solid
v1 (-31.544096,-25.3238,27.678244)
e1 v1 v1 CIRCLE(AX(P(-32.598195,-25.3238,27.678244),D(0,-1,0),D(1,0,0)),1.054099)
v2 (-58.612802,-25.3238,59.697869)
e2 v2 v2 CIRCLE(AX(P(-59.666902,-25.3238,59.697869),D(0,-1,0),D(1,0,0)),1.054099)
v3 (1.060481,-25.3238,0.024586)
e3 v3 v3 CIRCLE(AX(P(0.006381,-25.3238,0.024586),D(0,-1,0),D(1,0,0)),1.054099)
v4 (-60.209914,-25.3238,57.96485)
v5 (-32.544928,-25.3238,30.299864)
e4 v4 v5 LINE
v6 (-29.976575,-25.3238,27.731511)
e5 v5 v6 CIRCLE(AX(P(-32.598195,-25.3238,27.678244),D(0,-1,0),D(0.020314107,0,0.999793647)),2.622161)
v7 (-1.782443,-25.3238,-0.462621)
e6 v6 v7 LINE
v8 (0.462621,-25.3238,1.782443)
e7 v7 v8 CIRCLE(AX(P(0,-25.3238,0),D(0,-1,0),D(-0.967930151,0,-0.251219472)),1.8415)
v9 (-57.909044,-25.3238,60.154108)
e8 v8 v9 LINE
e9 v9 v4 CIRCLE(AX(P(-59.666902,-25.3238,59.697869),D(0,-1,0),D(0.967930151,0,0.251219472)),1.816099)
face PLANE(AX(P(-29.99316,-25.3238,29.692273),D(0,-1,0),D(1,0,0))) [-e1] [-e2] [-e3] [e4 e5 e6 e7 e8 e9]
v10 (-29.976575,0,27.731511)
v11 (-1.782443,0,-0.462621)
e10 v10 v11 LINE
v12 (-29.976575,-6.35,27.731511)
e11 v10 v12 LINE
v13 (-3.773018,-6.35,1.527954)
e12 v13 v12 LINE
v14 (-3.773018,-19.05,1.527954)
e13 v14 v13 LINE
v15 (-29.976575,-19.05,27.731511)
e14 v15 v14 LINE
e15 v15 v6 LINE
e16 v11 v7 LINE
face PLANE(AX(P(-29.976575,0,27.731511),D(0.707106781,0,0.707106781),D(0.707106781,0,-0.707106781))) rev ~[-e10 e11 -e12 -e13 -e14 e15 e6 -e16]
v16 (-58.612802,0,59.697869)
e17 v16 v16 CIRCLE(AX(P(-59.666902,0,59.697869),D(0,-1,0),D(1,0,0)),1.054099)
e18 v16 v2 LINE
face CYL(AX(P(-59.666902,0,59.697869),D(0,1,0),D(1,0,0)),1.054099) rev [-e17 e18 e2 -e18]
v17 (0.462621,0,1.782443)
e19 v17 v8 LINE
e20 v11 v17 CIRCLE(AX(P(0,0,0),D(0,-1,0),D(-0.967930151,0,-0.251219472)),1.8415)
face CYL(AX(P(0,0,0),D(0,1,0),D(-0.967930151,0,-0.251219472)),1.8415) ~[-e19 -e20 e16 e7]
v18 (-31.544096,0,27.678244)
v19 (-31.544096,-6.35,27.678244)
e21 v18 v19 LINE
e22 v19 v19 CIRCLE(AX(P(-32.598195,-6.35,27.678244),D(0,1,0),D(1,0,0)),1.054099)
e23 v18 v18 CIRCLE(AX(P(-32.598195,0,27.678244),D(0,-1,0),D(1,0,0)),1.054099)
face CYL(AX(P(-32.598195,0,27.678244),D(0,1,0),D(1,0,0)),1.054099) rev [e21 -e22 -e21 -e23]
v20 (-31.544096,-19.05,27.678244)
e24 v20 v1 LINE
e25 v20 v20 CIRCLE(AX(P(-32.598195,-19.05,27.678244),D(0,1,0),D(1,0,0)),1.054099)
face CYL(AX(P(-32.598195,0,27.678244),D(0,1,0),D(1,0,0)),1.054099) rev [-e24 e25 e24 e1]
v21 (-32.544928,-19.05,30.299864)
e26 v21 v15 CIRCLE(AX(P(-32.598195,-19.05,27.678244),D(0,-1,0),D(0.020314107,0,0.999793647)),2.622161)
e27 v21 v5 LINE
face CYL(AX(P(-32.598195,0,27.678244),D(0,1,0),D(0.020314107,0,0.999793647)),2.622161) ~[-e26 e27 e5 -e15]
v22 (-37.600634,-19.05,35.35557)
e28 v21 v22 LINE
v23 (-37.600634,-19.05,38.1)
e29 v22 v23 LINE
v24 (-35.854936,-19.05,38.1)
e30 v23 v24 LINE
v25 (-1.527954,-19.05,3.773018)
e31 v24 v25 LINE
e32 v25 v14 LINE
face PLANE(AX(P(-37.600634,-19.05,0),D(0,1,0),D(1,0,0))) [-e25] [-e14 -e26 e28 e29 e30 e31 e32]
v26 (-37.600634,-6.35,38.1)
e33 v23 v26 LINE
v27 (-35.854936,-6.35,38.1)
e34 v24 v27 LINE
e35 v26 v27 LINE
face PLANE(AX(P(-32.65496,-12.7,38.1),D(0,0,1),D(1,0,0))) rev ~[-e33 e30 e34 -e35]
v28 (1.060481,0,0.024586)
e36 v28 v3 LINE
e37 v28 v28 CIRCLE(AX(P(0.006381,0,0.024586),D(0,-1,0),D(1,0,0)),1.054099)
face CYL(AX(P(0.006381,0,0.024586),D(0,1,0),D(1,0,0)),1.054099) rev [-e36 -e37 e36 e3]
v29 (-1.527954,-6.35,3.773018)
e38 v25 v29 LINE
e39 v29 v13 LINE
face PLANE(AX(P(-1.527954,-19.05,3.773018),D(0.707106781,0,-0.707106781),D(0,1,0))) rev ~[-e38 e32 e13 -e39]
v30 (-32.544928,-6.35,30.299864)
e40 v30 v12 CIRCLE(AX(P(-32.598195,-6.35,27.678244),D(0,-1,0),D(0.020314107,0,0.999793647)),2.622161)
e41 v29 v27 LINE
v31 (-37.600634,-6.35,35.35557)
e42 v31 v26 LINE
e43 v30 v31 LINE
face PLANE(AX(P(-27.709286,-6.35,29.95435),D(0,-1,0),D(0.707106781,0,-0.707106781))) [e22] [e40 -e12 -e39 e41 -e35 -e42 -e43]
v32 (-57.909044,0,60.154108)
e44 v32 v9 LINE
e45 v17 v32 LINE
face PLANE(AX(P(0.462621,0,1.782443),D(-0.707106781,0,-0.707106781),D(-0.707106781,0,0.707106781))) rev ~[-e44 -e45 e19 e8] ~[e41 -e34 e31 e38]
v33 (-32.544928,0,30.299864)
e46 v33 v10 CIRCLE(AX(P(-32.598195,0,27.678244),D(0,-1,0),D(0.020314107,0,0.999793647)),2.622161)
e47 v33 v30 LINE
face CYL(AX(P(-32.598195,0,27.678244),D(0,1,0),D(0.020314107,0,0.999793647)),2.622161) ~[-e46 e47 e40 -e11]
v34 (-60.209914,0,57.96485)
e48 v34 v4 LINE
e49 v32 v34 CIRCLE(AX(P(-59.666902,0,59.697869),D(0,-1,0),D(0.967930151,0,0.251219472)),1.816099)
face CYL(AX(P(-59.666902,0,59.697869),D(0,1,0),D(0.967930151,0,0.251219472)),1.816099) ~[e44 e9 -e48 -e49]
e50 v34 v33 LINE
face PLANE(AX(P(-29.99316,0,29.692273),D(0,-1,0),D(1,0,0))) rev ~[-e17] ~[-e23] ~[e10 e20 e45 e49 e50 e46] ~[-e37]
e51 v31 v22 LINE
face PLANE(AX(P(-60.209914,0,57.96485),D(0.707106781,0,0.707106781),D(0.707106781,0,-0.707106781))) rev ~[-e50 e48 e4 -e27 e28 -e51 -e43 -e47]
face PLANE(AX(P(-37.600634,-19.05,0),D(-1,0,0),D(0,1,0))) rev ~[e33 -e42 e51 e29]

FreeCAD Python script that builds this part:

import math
import FreeCAD as App
import Part
import Sketcher

V = App.Vector
Q = App.Units.Quantity


def add_polygon(sketch, points):
    """Adds a closed chain of lines whose ends are joined by coincident constraints."""
    first, n = sketch.GeometryCount, len(points)
    for a, b in zip(points, points[1:] + points[:1]):
        sketch.addGeometry(Part.LineSegment(App.Vector(*a, 0), App.Vector(*b, 0)), False)
    for i in range(n):
        sketch.addConstraint(Sketcher.Constraint("Coincident", first + i, 2, first + (i + 1) % n, 1))

doc = App.newDocument("Part")
body = doc.addObject("PartDesign::Body", "Body")

# Sketch on XZ plane
sketch1 = body.newObject("Sketcher::SketchObject", "Sketch")
sketch1.AttachmentSupport = (doc.getObject("XZ_Plane"), [""])
sketch1.MapMode = "FlatFace"
sketch1.addGeometry(Part.LineSegment(V(-29.976575, 27.731511, 0), V(-1.782443, -0.462621, 0)), False)
sketch1.addGeometry(Part.ArcOfCircle(Part.Circle(V(0, 0, 0), V(0, 0, 1), 1.8415), math.radians(-165.450314), math.radians(75.450314)), False)
sketch1.addGeometry(Part.LineSegment(V(0.462621, 1.782443, 0), V(-57.909044, 60.154108, 0)), False)
sketch1.addGeometry(Part.ArcOfCircle(Part.Circle(V(-59.666902, 59.697869, 0), V(0, 0, 1), 1.816099), math.radians(14.549686), math.radians(252.602507)), False)
sketch1.addGeometry(Part.LineSegment(V(-60.209914, 57.96485, 0), V(-32.544928, 30.299864, 0)), False)
sketch1.addGeometry(Part.ArcOfCircle(Part.Circle(V(-32.598195, 27.678244, 0), V(0, 0, 1), 2.622161), math.radians(88.836007), math.radians(361.163993)), False)
sketch1.addGeometry(Part.Circle(V(-32.598195, 27.678244, 0), V(0, 0, 1), 1.054099), False)
sketch1.addGeometry(Part.Circle(V(0.006381, 0.024586, 0), V(0, 0, 1), 1.054099), False)
sketch1.addGeometry(Part.Circle(V(-59.666902, 59.697869, 0), V(0, 0, 1), 1.054099), False)
sketch1.addConstraint(Sketcher.Constraint("Coincident", 0, 2, 1, 1))
sketch1.addConstraint(Sketcher.Constraint("Coincident", 1, 2, 2, 1))
sketch1.addConstraint(Sketcher.Constraint("Coincident", 2, 2, 3, 1))
sketch1.addConstraint(Sketcher.Constraint("Coincident", 3, 2, 4, 1))
sketch1.addConstraint(Sketcher.Constraint("Coincident", 4, 2, 5, 1))
sketch1.addConstraint(Sketcher.Constraint("Coincident", 5, 2, 0, 1))
sketch1.addConstraint(Sketcher.Constraint("Coincident", 1, 3, -1, 1))
sketch1.addConstraint(Sketcher.Constraint("Coincident", 6, 3, 5, 3))
sketch1.addConstraint(Sketcher.Constraint("Coincident", 8, 3, 3, 3))
sketch1.addConstraint(Sketcher.Constraint("Diameter", 6, Q("0.083 in")))
sketch1.addConstraint(Sketcher.Constraint("Diameter", 7, Q("0.083 in")))
sketch1.addConstraint(Sketcher.Constraint("Diameter", 8, Q("0.083 in")))
sketch1.addConstraint(Sketcher.Constraint("Radius", 1, Q("0.0725 in")))
sketch1.addConstraint(Sketcher.Constraint("Radius", 3, Q("0.0715 in")))
sketch1.addConstraint(Sketcher.Constraint("Distance", 2, Q("3.25 in")))
sketch1.addConstraint(Sketcher.Constraint("Radius", 5, 2.622161))
sketch1.addConstraint(Sketcher.Constraint("DistanceX", 3, 3, -1, 1, 59.666902))
sketch1.addConstraint(Sketcher.Constraint("DistanceY", 1, 2, 5, 3, 25.895801))
sketch1.addConstraint(Sketcher.Constraint("DistanceY", -1, 1, 3, 3, 59.697869))
sketch1.addConstraint(Sketcher.Constraint("DistanceX", -1, 1, 7, 3, 0.006381))
sketch1.addConstraint(Sketcher.Constraint("DistanceY", 0, 2, -1, 1, 0.462621))
sketch1.addConstraint(Sketcher.Constraint("DistanceX", -1, 1, 1, 2, 0.462621))
sketch1.addConstraint(Sketcher.Constraint("DistanceY", -1, 1, 3, 2, 57.96485))
sketch1.addConstraint(Sketcher.Constraint("DistanceX", 4, 2, -1, 1, 32.544928))
sketch1.addConstraint(Sketcher.Constraint("DistanceY", -1, 1, 5, 2, 27.731511))
sketch1.addConstraint(Sketcher.Constraint("DistanceY", 7, 3, 5, 3, 27.653658))
sketch1.addConstraint(Sketcher.Constraint("DistanceX", 5, 3, 0, 2, 30.815752))
pad1 = body.newObject("PartDesign::Pad", "Pad")
pad1.Profile = sketch1
pad1.Length = Q("0.997 in")

# Sketch on XY plane
sketch2 = body.newObject("Sketcher::SketchObject", "Sketch001")
sketch2.AttachmentSupport = (doc.getObject("XY_Plane"), [""])
sketch2.MapMode = "FlatFace"
add_polygon(sketch2, [(-37.600634, -6.35), (-37.600634, -19.05), (-27.709286, -19.05), (-27.709286, -6.35)])  # lines 0-3
sketch2.addConstraint(Sketcher.Constraint("Vertical", 0))
sketch2.addConstraint(Sketcher.Constraint("Horizontal", 1))
sketch2.addConstraint(Sketcher.Constraint("Vertical", 2))
sketch2.addConstraint(Sketcher.Constraint("Horizontal", 3))
sketch2.addConstraint(Sketcher.Constraint("DistanceY", 0, 2, 0, 1, Q("0.5 in")))
sketch2.addConstraint(Sketcher.Constraint("DistanceY", 0, 2, -1, 1, Q("0.75 in")))
sketch2.addConstraint(Sketcher.Constraint("DistanceX", 1, 1, 1, 2, 9.891348))
sketch2.addConstraint(Sketcher.Constraint("DistanceX", 0, 2, -1, 1, 37.600634))
pocket1 = body.newObject("PartDesign::Pocket", "Pocket")
pocket1.Profile = sketch2
pocket1.Length = Q("1.5 in")
pocket1.Reversed = True

# Sketch on an angled plane
sketch3 = body.newObject("Sketcher::SketchObject", "Sketch002")
sketch3.Placement = App.Placement(V(1.122532, 0, 1.122532), App.Rotation(V(0.707106781, 0, -0.707106781), V(0, 0.999999999, 0), V(0.707106781, 0, 0.707106781), "ZXY"))
add_polygon(sketch3, [(-40.774348, -6.35), (-40.774348, -19.05), (-3.748353, -19.05), (-3.748353, -6.35)])  # lines 0-3
sketch3.addConstraint(Sketcher.Constraint("Vertical", 0))
sketch3.addConstraint(Sketcher.Constraint("Horizontal", 1))
sketch3.addConstraint(Sketcher.Constraint("Vertical", 2))
sketch3.addConstraint(Sketcher.Constraint("Horizontal", 3))
sketch3.addConstraint(Sketcher.Constraint("DistanceY", 0, 2, 0, 1, Q("0.5 in")))
sketch3.addConstraint(Sketcher.Constraint("DistanceY", 0, 2, -1, 1, Q("0.75 in")))
sketch3.addConstraint(Sketcher.Constraint("DistanceX", 1, 1, 1, 2, 37.025995))
sketch3.addConstraint(Sketcher.Constraint("DistanceX", 0, 2, -1, 1, 40.774348))
pocket2 = body.newObject("PartDesign::Pocket", "Pocket001")
pocket2.Profile = sketch3
pocket2.Length = Q("1 in")

doc.recompute()
